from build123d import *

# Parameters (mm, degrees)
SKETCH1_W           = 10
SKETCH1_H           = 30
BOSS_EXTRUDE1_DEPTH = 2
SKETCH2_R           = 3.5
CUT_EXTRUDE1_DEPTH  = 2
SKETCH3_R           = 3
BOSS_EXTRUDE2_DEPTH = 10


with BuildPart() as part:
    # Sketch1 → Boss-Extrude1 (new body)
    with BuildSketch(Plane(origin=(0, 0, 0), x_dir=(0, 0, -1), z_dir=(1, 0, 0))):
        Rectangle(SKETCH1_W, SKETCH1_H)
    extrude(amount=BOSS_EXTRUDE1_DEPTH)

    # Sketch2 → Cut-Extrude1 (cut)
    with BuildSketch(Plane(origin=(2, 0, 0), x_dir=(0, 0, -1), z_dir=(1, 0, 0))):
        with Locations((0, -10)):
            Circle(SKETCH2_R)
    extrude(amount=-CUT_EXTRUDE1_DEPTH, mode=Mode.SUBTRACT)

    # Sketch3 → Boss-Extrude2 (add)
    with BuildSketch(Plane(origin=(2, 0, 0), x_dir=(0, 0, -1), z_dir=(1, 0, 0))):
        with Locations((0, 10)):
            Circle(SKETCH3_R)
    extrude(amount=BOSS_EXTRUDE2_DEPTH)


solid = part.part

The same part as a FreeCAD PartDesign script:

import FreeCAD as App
import Part
import Sketcher

V = App.Vector
Q = App.Units.Quantity


def add_polygon(sketch, points):
    """Adds a closed chain of lines whose ends are joined by coincident constraints."""
    first, n = sketch.GeometryCount, len(points)
    for a, b in zip(points, points[1:] + points[:1]):
        sketch.addGeometry(Part.LineSegment(App.Vector(*a, 0), App.Vector(*b, 0)), False)
    for i in range(n):
        sketch.addConstraint(Sketcher.Constraint("Coincident", first + i, 2, first + (i + 1) % n, 1))

doc = App.newDocument("Part")
body = doc.addObject("PartDesign::Body", "Body")

# Sketch on YZ plane
sketch1 = body.newObject("Sketcher::SketchObject", "Sketch")
sketch1.AttachmentSupport = (doc.getObject("YZ_Plane"), [""])
sketch1.MapMode = "FlatFace"
add_polygon(sketch1, [(15, 5), (-15, 5), (-15, -5), (15, -5)])  # lines 0-3
sketch1.addConstraint([
    Sketcher.Constraint("Horizontal", 0),
    Sketcher.Constraint("Vertical", 1),
    Sketcher.Constraint("Horizontal", 2),
    Sketcher.Constraint("Vertical", 3),
    Sketcher.Constraint("Symmetric", 0, 2, 2, 2, -1, 1),
    Sketcher.Constraint("DistanceX", 0, 2, 0, 1, Q("30 mm")),
    Sketcher.Constraint("DistanceY", 1, 2, 1, 1, Q("10 mm")),
])
pad1 = body.newObject("PartDesign::Pad", "Pad")
pad1.Profile = sketch1
pad1.Length = 2

# Sketch on YZ plane
sketch2 = body.newObject("Sketcher::SketchObject", "Sketch001")
sketch2.AttachmentSupport = (doc.getObject("YZ_Plane"), [""])
sketch2.MapMode = "FlatFace"
sketch2.AttachmentOffset = App.Placement(V(0, 0, 2), App.Rotation())
sketch2.addGeometry(Part.Circle(V(-10, 0, 0), V(0, 0, 1), 3.5), False)
sketch2.addConstraint([
    Sketcher.Constraint("PointOnObject", 0, 3, -1),
    Sketcher.Constraint("Diameter", 0, Q("7 mm")),
    Sketcher.Constraint("DistanceX", 0, 3, -1, 1, Q("10 mm")),
])
pocket1 = body.newObject("PartDesign::Pocket", "Pocket")
pocket1.Profile = sketch2
pocket1.Length = 2

# Sketch on YZ plane
sketch3 = body.newObject("Sketcher::SketchObject", "Sketch002")
sketch3.AttachmentSupport = (doc.getObject("YZ_Plane"), [""])
sketch3.MapMode = "FlatFace"
sketch3.AttachmentOffset = App.Placement(V(0, 0, 2), App.Rotation())
sketch3.addGeometry(Part.Circle(V(10, 0, 0), V(0, 0, 1), 3), False)
sketch3.addConstraint([
    Sketcher.Constraint("PointOnObject", 0, 3, -1),
    Sketcher.Constraint("Diameter", 0, Q("6 mm")),
    Sketcher.Constraint("DistanceX", -1, 1, 0, 3, Q("10 mm")),
])
pad2 = body.newObject("PartDesign::Pad", "Pad001")
pad2.Profile = sketch3
pad2.Length = 10

doc.recompute()
